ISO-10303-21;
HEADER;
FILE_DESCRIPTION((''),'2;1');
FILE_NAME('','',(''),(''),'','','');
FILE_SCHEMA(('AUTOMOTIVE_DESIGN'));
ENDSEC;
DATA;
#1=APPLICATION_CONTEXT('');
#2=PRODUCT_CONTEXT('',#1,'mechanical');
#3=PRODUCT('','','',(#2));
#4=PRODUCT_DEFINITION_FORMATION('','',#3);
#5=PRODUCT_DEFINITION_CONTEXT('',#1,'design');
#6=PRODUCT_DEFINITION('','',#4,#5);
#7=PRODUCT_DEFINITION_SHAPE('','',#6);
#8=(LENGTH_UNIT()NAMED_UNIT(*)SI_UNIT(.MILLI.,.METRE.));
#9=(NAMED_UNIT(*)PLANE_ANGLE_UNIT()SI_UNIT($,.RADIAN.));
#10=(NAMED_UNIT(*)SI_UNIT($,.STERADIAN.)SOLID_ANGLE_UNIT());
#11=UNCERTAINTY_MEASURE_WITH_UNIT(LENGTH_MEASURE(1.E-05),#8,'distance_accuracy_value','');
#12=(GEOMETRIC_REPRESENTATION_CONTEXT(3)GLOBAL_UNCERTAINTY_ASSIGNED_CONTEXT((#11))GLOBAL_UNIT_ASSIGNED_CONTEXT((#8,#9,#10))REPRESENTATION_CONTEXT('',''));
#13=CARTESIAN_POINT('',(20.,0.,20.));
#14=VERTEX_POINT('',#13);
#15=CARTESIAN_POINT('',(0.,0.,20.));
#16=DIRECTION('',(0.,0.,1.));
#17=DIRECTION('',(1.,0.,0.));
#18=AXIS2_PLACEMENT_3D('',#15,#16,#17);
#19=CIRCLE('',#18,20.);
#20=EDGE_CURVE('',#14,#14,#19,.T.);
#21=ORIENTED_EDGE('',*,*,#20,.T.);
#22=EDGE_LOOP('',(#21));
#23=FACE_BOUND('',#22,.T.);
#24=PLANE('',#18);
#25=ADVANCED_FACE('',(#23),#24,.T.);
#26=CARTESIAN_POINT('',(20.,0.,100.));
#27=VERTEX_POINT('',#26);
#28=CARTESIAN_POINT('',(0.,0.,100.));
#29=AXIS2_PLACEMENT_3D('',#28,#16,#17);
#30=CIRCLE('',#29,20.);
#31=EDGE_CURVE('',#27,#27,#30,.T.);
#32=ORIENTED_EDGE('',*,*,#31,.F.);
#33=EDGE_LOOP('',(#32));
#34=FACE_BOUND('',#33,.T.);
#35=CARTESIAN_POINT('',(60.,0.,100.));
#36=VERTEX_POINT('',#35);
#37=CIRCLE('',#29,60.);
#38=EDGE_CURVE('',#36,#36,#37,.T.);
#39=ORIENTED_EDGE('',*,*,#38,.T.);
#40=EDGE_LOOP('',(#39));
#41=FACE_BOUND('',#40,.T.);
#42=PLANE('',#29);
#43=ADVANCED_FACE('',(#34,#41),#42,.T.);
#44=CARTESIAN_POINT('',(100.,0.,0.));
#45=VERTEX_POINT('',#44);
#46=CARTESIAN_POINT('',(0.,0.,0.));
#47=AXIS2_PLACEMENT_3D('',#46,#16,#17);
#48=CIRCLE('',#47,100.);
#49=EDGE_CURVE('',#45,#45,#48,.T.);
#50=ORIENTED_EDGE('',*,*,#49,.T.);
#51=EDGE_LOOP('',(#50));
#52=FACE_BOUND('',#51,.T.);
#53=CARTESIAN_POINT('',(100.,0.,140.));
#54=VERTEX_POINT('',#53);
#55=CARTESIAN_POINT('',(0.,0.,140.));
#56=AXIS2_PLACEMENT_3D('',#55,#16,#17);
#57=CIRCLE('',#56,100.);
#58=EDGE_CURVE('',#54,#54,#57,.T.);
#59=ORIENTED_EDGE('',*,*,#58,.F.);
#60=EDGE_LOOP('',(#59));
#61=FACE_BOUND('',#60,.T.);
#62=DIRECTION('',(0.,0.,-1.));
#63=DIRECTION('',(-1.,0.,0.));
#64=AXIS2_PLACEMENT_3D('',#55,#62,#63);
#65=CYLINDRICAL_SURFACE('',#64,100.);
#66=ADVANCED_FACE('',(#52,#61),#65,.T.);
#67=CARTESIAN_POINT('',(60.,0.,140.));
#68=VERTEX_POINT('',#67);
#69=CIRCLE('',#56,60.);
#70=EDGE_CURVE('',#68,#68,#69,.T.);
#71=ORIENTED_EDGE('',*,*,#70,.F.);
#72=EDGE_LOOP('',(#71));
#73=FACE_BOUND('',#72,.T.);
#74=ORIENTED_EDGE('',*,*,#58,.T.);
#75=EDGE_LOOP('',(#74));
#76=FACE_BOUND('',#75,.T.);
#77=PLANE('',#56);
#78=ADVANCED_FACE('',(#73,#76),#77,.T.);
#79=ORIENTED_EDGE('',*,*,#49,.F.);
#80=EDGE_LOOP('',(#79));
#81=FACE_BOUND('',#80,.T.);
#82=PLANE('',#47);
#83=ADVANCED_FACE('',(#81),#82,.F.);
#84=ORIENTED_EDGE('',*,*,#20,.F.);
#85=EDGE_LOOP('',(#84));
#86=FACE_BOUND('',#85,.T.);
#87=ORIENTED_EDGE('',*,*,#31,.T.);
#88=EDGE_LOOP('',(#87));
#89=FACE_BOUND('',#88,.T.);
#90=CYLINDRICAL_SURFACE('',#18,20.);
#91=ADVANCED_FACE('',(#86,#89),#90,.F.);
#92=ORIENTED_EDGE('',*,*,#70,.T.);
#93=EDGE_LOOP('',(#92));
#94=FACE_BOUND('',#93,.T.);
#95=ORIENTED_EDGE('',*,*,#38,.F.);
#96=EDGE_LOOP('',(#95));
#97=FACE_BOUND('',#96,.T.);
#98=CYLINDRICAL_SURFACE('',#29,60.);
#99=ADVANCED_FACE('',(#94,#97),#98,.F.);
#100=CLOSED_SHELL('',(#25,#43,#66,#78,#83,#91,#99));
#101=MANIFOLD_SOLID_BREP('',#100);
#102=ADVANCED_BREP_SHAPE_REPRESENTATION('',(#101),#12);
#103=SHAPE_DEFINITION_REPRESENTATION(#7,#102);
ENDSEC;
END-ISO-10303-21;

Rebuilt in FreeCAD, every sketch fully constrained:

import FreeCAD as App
import Part
import Sketcher
Q = App.Units.Quantity

doc = App.newDocument("Part")
body = doc.addObject("PartDesign::Body", "Body")

sketch1 = body.newObject("Sketcher::SketchObject", "Sketch")
sketch1.AttachmentSupport = (doc.getObject("XY_Plane"), [""])
sketch1.MapMode = "FlatFace"
sketch1.addGeometry(Part.Circle(App.Vector(0, 0, 0), App.Vector(0, 0, 1), 100), False)
sketch1.addConstraint(Sketcher.Constraint("Coincident", 0, 3, -1, 1))
sketch1.addConstraint(Sketcher.Constraint("Diameter", 0, Q("200 mm")))
pad1 = body.newObject("PartDesign::Pad", "Pad")
pad1.Profile = sketch1
pad1.Length = 140

sketch2 = body.newObject("Sketcher::SketchObject", "Sketch001")
sketch2.AttachmentSupport = (doc.getObject("XY_Plane"), [""])
sketch2.MapMode = "FlatFace"
sketch2.AttachmentOffset = App.Placement(App.Vector(0, 0, 140), App.Rotation())
sketch2.addGeometry(Part.Circle(App.Vector(0, 0, 0), App.Vector(0, 0, 1), 60), False)
sketch2.addConstraint(Sketcher.Constraint("Coincident", 0, 3, -1, 1))
sketch2.addConstraint(Sketcher.Constraint("Diameter", 0, Q("120 mm")))
pocket1 = body.newObject("PartDesign::Pocket", "Pocket")
pocket1.Profile = sketch2
pocket1.Length = 40

sketch3 = body.newObject("Sketcher::SketchObject", "Sketch002")
sketch3.AttachmentSupport = (doc.getObject("XY_Plane"), [""])
sketch3.MapMode = "FlatFace"
sketch3.AttachmentOffset = App.Placement(App.Vector(0, 0, 100), App.Rotation())
sketch3.addGeometry(Part.Circle(App.Vector(0, 0, 0), App.Vector(0, 0, 1), 20), False)
sketch3.addConstraint(Sketcher.Constraint("Coincident", 0, 3, -1, 1))
sketch3.addConstraint(Sketcher.Constraint("Diameter", 0, Q("40 mm")))
pocket2 = body.newObject("PartDesign::Pocket", "Pocket001")
pocket2.Profile = sketch3
pocket2.Length = 80

doc.recompute()
